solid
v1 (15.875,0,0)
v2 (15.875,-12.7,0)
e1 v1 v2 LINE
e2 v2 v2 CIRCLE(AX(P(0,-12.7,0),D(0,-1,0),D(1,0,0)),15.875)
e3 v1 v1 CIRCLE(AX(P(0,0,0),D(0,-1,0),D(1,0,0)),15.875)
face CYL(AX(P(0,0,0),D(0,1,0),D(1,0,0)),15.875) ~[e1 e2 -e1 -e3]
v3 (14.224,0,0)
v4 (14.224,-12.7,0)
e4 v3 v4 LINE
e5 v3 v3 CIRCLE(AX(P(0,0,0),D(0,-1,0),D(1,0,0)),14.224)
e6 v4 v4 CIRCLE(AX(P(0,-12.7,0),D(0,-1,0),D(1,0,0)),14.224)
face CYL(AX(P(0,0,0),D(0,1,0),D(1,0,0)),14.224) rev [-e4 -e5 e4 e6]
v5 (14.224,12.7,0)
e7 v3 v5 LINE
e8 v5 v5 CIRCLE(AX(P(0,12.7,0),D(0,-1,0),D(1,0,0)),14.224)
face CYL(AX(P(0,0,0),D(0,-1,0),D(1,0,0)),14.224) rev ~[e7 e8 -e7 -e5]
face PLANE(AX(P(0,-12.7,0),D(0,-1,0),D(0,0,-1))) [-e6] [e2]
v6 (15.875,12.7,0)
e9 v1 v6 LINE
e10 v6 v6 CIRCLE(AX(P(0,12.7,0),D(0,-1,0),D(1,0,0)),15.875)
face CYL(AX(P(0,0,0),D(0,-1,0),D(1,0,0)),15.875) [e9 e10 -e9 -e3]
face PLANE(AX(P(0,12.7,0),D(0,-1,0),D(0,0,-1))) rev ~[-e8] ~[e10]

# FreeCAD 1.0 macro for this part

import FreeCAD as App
import Part
import Sketcher

V = App.Vector
Q = App.Units.Quantity

doc = App.newDocument("Part")
body = doc.addObject("PartDesign::Body", "Body")

# Sketch on XZ plane
sketch1 = body.newObject("Sketcher::SketchObject", "Sketch")
sketch1.AttachmentSupport = (doc.getObject("XZ_Plane"), [""])
sketch1.MapMode = "FlatFace"
sketch1.addGeometry([
    Part.Circle(V(0, 0, 0), V(0, 0, 1), 16),
    Part.Circle(V(0, 0, 0), V(0, 0, 1), 14),
], False)
sketch1.addConstraint([
    Sketcher.Constraint("Coincident", 0, 3, -1, 1),
    Sketcher.Constraint("Coincident", 1, 3, -1, 1),
    Sketcher.Constraint("Diameter", 0, Q("1.25 in")),
    Sketcher.Constraint("Diameter", 1, Q("1.12 in")),
])
pad1 = body.newObject("PartDesign::Pad", "Pad")
pad1.Profile = sketch1
pad1.Length = Q("1 in")
pad1.Midplane = True

doc.recompute()
